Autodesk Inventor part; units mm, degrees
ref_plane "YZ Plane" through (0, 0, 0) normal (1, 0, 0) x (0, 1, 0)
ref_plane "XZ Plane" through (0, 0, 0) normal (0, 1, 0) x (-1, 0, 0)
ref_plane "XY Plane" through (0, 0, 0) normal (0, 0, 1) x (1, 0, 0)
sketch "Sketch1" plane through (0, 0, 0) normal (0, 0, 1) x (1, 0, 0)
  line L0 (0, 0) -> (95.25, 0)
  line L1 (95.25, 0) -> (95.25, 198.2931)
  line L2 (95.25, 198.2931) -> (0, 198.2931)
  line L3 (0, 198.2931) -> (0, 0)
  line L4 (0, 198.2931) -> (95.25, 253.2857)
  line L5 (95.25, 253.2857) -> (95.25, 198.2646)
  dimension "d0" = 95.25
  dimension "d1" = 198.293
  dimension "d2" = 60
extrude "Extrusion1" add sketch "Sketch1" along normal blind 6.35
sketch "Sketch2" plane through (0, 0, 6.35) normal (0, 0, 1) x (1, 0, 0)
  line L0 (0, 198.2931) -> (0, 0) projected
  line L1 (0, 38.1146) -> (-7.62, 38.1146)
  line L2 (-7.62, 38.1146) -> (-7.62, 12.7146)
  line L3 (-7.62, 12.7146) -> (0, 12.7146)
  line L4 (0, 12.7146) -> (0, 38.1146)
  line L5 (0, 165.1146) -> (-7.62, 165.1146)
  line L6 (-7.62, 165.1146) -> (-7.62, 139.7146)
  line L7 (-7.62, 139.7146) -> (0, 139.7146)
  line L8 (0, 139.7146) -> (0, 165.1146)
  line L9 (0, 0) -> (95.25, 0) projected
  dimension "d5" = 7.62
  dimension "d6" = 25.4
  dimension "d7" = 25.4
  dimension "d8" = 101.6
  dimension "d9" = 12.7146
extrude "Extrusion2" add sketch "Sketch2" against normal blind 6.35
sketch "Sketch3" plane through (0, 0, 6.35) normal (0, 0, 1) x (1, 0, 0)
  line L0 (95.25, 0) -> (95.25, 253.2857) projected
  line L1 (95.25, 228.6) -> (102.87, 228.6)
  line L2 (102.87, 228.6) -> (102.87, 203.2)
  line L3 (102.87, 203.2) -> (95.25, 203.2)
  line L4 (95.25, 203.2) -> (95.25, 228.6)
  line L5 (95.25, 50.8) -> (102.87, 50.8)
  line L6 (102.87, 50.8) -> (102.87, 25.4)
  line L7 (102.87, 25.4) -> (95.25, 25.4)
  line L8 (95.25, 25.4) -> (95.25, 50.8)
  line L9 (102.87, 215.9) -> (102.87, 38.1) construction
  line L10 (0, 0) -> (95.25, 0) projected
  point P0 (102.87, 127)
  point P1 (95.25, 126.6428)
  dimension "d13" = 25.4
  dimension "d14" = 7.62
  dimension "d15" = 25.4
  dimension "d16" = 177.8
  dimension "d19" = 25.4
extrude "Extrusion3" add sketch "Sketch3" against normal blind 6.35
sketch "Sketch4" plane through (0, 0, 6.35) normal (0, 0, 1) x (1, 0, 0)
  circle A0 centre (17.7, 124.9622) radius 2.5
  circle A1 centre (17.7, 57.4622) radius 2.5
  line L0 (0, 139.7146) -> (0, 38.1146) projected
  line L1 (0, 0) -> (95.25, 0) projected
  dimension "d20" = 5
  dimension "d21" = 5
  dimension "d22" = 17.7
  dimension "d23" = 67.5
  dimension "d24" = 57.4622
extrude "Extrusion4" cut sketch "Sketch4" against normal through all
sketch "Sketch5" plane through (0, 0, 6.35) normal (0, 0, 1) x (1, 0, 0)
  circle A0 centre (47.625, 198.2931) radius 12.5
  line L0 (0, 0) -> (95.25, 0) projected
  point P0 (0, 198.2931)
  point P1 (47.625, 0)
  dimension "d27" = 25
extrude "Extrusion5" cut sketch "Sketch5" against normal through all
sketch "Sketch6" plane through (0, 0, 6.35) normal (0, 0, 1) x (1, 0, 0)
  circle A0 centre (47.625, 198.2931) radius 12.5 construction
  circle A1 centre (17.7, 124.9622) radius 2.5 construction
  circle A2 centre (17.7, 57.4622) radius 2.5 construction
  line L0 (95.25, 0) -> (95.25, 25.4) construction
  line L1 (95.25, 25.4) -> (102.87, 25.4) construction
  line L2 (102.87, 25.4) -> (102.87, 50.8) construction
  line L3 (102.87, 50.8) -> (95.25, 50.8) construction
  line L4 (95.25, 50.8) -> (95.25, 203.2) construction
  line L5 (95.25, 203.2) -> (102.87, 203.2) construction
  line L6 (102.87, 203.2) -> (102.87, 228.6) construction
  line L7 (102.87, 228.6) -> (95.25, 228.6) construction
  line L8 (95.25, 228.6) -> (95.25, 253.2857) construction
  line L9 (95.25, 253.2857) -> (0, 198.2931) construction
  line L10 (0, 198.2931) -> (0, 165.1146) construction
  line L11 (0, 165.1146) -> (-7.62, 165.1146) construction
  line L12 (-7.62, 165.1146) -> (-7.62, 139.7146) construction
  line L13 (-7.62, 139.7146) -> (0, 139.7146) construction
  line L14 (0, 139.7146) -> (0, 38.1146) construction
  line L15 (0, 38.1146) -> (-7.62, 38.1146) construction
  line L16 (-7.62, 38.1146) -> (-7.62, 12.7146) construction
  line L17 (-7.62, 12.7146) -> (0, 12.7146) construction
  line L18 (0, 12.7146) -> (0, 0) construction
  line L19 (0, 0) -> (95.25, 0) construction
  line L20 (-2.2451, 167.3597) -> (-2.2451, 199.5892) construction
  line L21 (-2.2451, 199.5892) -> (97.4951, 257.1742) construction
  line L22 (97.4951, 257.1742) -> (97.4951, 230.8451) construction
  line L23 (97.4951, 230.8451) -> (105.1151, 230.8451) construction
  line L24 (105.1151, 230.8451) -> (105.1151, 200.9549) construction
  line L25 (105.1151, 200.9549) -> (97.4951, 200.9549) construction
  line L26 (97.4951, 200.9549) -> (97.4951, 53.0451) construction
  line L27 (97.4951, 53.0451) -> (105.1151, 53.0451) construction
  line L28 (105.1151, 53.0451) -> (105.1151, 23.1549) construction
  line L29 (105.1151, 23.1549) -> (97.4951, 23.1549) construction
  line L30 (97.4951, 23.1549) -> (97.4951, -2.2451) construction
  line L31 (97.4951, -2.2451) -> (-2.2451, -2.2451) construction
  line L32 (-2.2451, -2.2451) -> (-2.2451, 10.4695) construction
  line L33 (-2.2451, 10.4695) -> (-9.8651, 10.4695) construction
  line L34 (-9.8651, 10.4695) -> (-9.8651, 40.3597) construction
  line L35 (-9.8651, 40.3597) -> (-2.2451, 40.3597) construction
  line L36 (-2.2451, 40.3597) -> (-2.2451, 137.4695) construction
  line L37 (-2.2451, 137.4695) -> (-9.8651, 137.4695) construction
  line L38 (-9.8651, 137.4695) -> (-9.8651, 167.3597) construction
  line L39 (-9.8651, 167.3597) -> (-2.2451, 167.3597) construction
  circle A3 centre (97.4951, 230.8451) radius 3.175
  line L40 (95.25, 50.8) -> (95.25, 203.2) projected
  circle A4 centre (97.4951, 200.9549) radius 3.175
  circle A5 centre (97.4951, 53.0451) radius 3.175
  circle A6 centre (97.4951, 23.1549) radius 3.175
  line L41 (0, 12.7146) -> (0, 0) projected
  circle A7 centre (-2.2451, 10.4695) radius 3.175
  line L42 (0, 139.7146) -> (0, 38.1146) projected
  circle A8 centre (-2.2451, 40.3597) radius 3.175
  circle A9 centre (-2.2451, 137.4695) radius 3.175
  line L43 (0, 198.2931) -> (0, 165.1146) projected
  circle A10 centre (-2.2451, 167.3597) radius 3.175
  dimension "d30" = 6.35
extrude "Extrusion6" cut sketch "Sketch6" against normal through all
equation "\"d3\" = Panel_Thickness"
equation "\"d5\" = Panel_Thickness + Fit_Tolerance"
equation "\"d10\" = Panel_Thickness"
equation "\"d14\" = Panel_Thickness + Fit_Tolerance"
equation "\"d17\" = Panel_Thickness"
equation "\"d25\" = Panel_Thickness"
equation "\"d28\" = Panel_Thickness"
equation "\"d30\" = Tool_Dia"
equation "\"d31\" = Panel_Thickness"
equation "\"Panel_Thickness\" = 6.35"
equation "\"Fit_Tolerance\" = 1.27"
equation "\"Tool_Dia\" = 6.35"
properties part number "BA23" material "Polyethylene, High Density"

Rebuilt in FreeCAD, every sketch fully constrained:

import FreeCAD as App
import Part
import Sketcher
from FreeCAD import Vector
Q = App.Units.Quantity


def add_polygon(sketch, points):
    """Adds a closed chain of lines whose ends are joined by coincident constraints."""
    first, n = sketch.GeometryCount, len(points)
    for a, b in zip(points, points[1:] + points[:1]):
        sketch.addGeometry(Part.LineSegment(App.Vector(*a, 0), App.Vector(*b, 0)), False)
    for i in range(n):
        sketch.addConstraint(Sketcher.Constraint("Coincident", first + i, 2, first + (i + 1) % n, 1))

doc = App.newDocument("Part")
body = doc.addObject("PartDesign::Body", "Body")

sketch1 = body.newObject("Sketcher::SketchObject", "Sketch")
sketch1.AttachmentSupport = (doc.getObject("XY_Plane"), [""])
sketch1.MapMode = "FlatFace"
add_polygon(sketch1, [(0, 198), (0, 0), (95, 0), (95, 253)])
sketch1.addConstraint([
    Sketcher.Constraint("Vertical", 0),
    Sketcher.Constraint("Horizontal", 1),
    Sketcher.Constraint("Vertical", 2),
    Sketcher.Constraint("Coincident", 0, 2, -1, 1),
    Sketcher.Constraint("DistanceX", 1, 1, 1, 2, Q("3.75 in")),
    Sketcher.Constraint("Angle", 3, Q("-150 deg")),
    Sketcher.Constraint("DistanceY", 0, 2, 0, 1, Q("7.806811 in")),
])
pad1 = body.newObject("PartDesign::Pad", "Pad")
pad1.Profile = sketch1
pad1.Length = Q("0.25 in")

sketch2 = body.newObject("Sketcher::SketchObject", "Sketch001")
sketch2.AttachmentSupport = (doc.getObject("XY_Plane"), [""])
sketch2.MapMode = "FlatFace"
sketch2.AttachmentOffset = App.Placement(Vector(0, 0, 0.25 * 25.4), App.Rotation())
add_polygon(sketch2, [(0, 13), (0, 38), (-8, 38), (-8, 13)])
add_polygon(sketch2, [(0, 140), (0, 165), (-8, 165), (-8, 140)])
sketch2.addConstraint([
    Sketcher.Constraint("Vertical", 0),
    Sketcher.Constraint("Horizontal", 1),
    Sketcher.Constraint("Vertical", 2),
    Sketcher.Constraint("Horizontal", 3),
    Sketcher.Constraint("Vertical", 4),
    Sketcher.Constraint("Horizontal", 5),
    Sketcher.Constraint("Vertical", 6),
    Sketcher.Constraint("Horizontal", 7),
    Sketcher.Constraint("PointOnObject", 0, 2, -2),
    Sketcher.Constraint("PointOnObject", 4, 2, -2),
    Sketcher.Constraint("Vertical", 2, 2, 5, 2),
    Sketcher.Constraint("Equal", 2, 4),
    Sketcher.Constraint("DistanceY", 0, 1, 0, 2, Q("1 in")),
    Sketcher.Constraint("DistanceX", 1, 2, 1, 1, Q("0.3 in")),
    Sketcher.Constraint("DistanceY", 1, 2, 6, 2, Q("4 in")),
    Sketcher.Constraint("DistanceY", -1, 1, 2, 2, Q("12.7146 mm")),
])
pad2 = body.newObject("PartDesign::Pad", "Pad001")
pad2.Profile = sketch2
pad2.Length = Q("0.25 in")
pad2.Reversed = True

sketch3 = body.newObject("Sketcher::SketchObject", "Sketch002")
sketch3.AttachmentSupport = (doc.getObject("XY_Plane"), [""])
sketch3.MapMode = "FlatFace"
sketch3.AttachmentOffset = App.Placement(Vector(0, 0, 0.25 * 25.4), App.Rotation())
add_polygon(sketch3, [(95, 229), (95, 203), (103, 203), (103, 229)])
add_polygon(sketch3, [(95, 51), (95, 25), (103, 25), (103, 51)])
sketch3.addConstraint([
    Sketcher.Constraint("Vertical", 0),
    Sketcher.Constraint("Horizontal", 1),
    Sketcher.Constraint("Vertical", 2),
    Sketcher.Constraint("Horizontal", 3),
    Sketcher.Constraint("Vertical", 4),
    Sketcher.Constraint("Horizontal", 5),
    Sketcher.Constraint("Vertical", 6),
    Sketcher.Constraint("Horizontal", 7),
    Sketcher.Constraint("Vertical", 3, 2, 4, 2),
    Sketcher.Constraint("Vertical", 2, 2, 5, 2),
    Sketcher.Constraint("Equal", 2, 4),
    Sketcher.Constraint("DistanceY", 0, 2, 0, 1, Q("1 in")),
    Sketcher.Constraint("DistanceX", 1, 1, 1, 2, Q("0.3 in")),
    Sketcher.Constraint("DistanceY", -1, 1, 4, 2, Q("1 in")),
    Sketcher.Constraint("DistanceY", 4, 2, 0, 2, Q("7 in")),
    Sketcher.Constraint("DistanceX", -1, 1, 0, 2, Q("3.75 in")),
])
pad3 = body.newObject("PartDesign::Pad", "Pad002")
pad3.Profile = sketch3
pad3.Length = Q("0.25 in")
pad3.Reversed = True

sketch4 = body.newObject("Sketcher::SketchObject", "Sketch003")
sketch4.AttachmentSupport = (doc.getObject("XY_Plane"), [""])
sketch4.MapMode = "FlatFace"
sketch4.AttachmentOffset = App.Placement(Vector(0, 0, 0.25 * 25.4), App.Rotation())
sketch4.addGeometry([
    Part.Circle(Vector(17.7, 125, 0), Vector(0, 0, 1), 2.5),
    Part.Circle(Vector(17.7, 57.5, 0), Vector(0, 0, 1), 2.5),
], False)
sketch4.addConstraint([
    Sketcher.Constraint("Equal", 0, 1),
    Sketcher.Constraint("Vertical", 0, 3, 1, 3),
    Sketcher.Constraint("Diameter", 0, Q("5 mm")),
    Sketcher.Constraint("DistanceY", -1, 1, 1, 3, Q("2.2623 in")),
    Sketcher.Constraint("DistanceX", -1, 1, 0, 3, Q("17.7 mm")),
    Sketcher.Constraint("DistanceY", 1, 3, 0, 3, Q("67.5 mm")),
])
pocket1 = body.newObject("PartDesign::Pocket", "Pocket")
pocket1.Profile = sketch4
pocket1.Type = "ThroughAll"

sketch5 = body.newObject("Sketcher::SketchObject", "Sketch004")
sketch5.AttachmentSupport = (doc.getObject("XY_Plane"), [""])
sketch5.MapMode = "FlatFace"
sketch5.AttachmentOffset = App.Placement(Vector(0, 0, 0.25 * 25.4), App.Rotation())
sketch5.addGeometry(Part.Circle(Vector(48, 198, 0), Vector(0, 0, 1), 12), False)
sketch5.addConstraint([
    Sketcher.Constraint("Diameter", 0, Q("25 mm")),
    Sketcher.Constraint("DistanceX", -1, 1, 0, 3, Q("1.875 in")),
    Sketcher.Constraint("DistanceY", -1, 1, 0, 3, Q("7.806811 in")),
])
pocket2 = body.newObject("PartDesign::Pocket", "Pocket001")
pocket2.Profile = sketch5
pocket2.Type = "ThroughAll"

sketch6 = body.newObject("Sketcher::SketchObject", "Sketch005")
sketch6.AttachmentSupport = (doc.getObject("XY_Plane"), [""])
sketch6.MapMode = "FlatFace"
sketch6.AttachmentOffset = App.Placement(Vector(0, 0, 0.25 * 25.4), App.Rotation())
sketch6.addGeometry([
    Part.Circle(Vector(97.5, 230.8, 0), Vector(0, 0, 1), 3.2),
    Part.Circle(Vector(97.5, 53, 0), Vector(0, 0, 1), 3.2),
    Part.Circle(Vector(97.5, 201, 0), Vector(0, 0, 1), 3.2),
    Part.Circle(Vector(97.5, 23.2, 0), Vector(0, 0, 1), 3.2),
    Part.Circle(Vector(-2.2, 10.5, 0), Vector(0, 0, 1), 3.2),
    Part.Circle(Vector(-2.2, 137.5, 0), Vector(0, 0, 1), 3.2),
    Part.Circle(Vector(-2.2, 40.4, 0), Vector(0, 0, 1), 3.2),
    Part.Circle(Vector(-2.2, 167.4, 0), Vector(0, 0, 1), 3.2),
], False)
sketch6.addConstraint([
    Sketcher.Constraint("Equal", 0, 1),
    Sketcher.Constraint("Equal", 1, 2),
    Sketcher.Constraint("Equal", 2, 3),
    Sketcher.Constraint("Equal", 3, 4),
    Sketcher.Constraint("Equal", 4, 5),
    Sketcher.Constraint("Equal", 5, 6),
    Sketcher.Constraint("Equal", 6, 7),
    Sketcher.Constraint("Vertical", 0, 3, 1, 3),
    Sketcher.Constraint("Vertical", 1, 3, 2, 3),
    Sketcher.Constraint("Vertical", 2, 3, 3, 3),
    Sketcher.Constraint("Vertical", 4, 3, 5, 3),
    Sketcher.Constraint("Vertical", 5, 3, 6, 3),
    Sketcher.Constraint("Vertical", 6, 3, 7, 3),
    Sketcher.Constraint("Diameter", 0, Q("0.25 in")),
    Sketcher.Constraint("DistanceY", 1, 3, 0, 3, Q("7 in")),
    Sketcher.Constraint("DistanceY", 3, 3, 2, 3, Q("7 in")),
    Sketcher.Constraint("DistanceY", 4, 3, 5, 3, Q("5 in")),
    Sketcher.Constraint("DistanceY", 6, 3, 7, 3, Q("5 in")),
    Sketcher.Constraint("DistanceX", -1, 1, 0, 3, Q("3.8384 in")),
    Sketcher.Constraint("DistanceY", -1, 1, 0, 3, Q("9.0884 in")),
    Sketcher.Constraint("DistanceY", -1, 1, 2, 3, Q("7.9116 in")),
    Sketcher.Constraint("DistanceX", 4, 3, -1, 1, Q("0.0884 in")),
    Sketcher.Constraint("DistanceY", 4, 3, 1, 3, Q("1.6762 in")),
    Sketcher.Constraint("DistanceY", -1, 1, 6, 3, Q("40.3597 mm")),
])
pocket3 = body.newObject("PartDesign::Pocket", "Pocket002")
pocket3.Profile = sketch6
pocket3.Type = "ThroughAll"

doc.recompute()
